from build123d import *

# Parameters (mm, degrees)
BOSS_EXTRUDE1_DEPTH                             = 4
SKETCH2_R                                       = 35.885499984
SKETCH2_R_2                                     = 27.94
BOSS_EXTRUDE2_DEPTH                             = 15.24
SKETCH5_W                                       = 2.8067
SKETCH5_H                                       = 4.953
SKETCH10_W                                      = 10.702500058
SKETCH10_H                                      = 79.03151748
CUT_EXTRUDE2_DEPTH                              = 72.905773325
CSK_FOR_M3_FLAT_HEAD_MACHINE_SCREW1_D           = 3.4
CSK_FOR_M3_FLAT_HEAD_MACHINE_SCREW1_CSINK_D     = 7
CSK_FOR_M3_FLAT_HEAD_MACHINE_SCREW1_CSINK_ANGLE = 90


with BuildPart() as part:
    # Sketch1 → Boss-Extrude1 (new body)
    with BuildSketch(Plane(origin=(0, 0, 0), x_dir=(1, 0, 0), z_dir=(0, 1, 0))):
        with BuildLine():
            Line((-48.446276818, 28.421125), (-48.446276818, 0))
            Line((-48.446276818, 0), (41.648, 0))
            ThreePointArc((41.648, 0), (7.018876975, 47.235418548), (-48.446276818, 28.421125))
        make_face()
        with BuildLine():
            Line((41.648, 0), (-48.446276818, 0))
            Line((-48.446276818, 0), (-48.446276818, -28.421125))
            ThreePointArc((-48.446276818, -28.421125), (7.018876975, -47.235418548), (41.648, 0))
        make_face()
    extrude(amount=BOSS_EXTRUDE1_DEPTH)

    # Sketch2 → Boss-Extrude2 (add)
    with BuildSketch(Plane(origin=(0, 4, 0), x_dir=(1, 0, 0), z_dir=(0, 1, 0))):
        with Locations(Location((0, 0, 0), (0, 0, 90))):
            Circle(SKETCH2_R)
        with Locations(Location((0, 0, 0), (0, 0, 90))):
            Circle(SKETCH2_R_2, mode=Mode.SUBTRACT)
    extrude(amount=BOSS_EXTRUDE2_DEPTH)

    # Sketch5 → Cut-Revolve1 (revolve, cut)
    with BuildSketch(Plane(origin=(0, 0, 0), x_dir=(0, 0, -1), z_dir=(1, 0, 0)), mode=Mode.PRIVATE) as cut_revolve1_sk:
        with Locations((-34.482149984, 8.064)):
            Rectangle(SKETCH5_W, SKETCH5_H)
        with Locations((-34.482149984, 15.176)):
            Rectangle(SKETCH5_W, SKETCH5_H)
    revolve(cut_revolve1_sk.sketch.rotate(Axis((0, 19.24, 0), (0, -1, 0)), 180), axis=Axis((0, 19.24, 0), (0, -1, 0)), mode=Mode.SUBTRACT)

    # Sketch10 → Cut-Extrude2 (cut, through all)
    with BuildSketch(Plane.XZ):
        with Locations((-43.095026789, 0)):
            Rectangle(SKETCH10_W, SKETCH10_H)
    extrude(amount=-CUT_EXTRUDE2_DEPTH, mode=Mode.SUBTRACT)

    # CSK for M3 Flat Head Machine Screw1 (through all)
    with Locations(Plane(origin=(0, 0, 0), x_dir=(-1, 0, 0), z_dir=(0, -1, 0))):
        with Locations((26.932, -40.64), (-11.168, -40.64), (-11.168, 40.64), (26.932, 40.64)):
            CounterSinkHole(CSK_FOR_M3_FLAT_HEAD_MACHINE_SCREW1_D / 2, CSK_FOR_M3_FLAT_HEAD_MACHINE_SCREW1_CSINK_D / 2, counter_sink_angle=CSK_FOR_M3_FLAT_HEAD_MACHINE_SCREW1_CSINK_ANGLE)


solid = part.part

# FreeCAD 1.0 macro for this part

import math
import FreeCAD as App
import Part
import Sketcher
from FreeCAD import Vector
Q = App.Units.Quantity

doc = App.newDocument("Part")
params = doc.addObject("Spreadsheet::Sheet", "Params")
for row, (alias, value) in enumerate([
    ("sketch1_radius", "1.95 in"),
    ("pad1_length", "4 mm"),
    ("sketch2_diameter", "2.2 in"),
    ("pad2_length", "0.6 in"),
    ("sketch3_width", "0.195 in"),
    ("groove_angle", "360 deg"),
    ("hole_diameter", "3.4 mm"),
    ("hole_csink_diameter", "7 mm"),
], start=1):
    params.set(f"A{row}", alias)
    params.set(f"B{row}", "=" + value)
    params.setAlias(f"B{row}", alias)

body = doc.addObject("PartDesign::Body", "Body")

sketch1 = doc.addObject("Sketcher::SketchObject", "Sketch")
body.addObject(sketch1)
sketch1.AttachmentSupport = (doc.XZ_Plane, [""])
sketch1.MapMode = "FlatFace"
sketch1.addGeometry(Part.LineSegment(Vector(-48, -28, 0), Vector(-48, 28, 0)), False)
sketch1.addGeometry(Part.ArcOfCircle(Part.Circle(Vector(-8, 0, 0), Vector(0, 0, 1), 50), math.radians(0), math.radians(145)), False)
sketch1.addGeometry(Part.ArcOfCircle(Part.Circle(Vector(-8, 0, 0), Vector(0, 0, 1), 50), math.radians(-145), math.radians(0)), False)
sketch1.addConstraint(Sketcher.Constraint("Coincident", 0, 2, 1, 2))
sketch1.addConstraint(Sketcher.Constraint("Tangent", 1, 1, 2, 2))
sketch1.addConstraint(Sketcher.Constraint("Coincident", 2, 1, 0, 1))
sketch1.addConstraint(Sketcher.Constraint("Vertical", 0))
sketch1.addConstraint(Sketcher.Constraint("Equal", 1, 2))
sketch1.addConstraint(Sketcher.Constraint("PointOnObject", 1, 3, -1))
sketch1.addConstraint(Sketcher.Constraint("PointOnObject", 1, 1, -1))
sketch1.addConstraint(Sketcher.Constraint("Radius", 1, Q("1.95 in")))
sketch1.addConstraint(Sketcher.Constraint("DistanceY", 0, 1, 0, 2, 56.84225))
sketch1.addConstraint(Sketcher.Constraint("DistanceX", 1, 3, -1, 1, 7.882))
sketch1.setExpression("Constraints[7]", "Params.sketch1_radius")
pad1 = doc.addObject("PartDesign::Pad", "Pad")
body.addObject(pad1)
pad1.Profile = sketch1
pad1.setExpression("Length", "Params.pad1_length")
pad1.Reversed = True

sketch2 = doc.addObject("Sketcher::SketchObject", "Sketch001")
body.addObject(sketch2)
sketch2.AttachmentSupport = (doc.XZ_Plane, [""])
sketch2.MapMode = "FlatFace"
sketch2.AttachmentOffset = App.Placement(Vector(0, 0, -4), App.Rotation())
sketch2.addGeometry(Part.Circle(Vector(0, 0, 0), Vector(0, 0, 1), 36), False)
sketch2.addGeometry(Part.Circle(Vector(0, 0, 0), Vector(0, 0, 1), 28), False)
sketch2.addConstraint(Sketcher.Constraint("Coincident", 0, 3, -1, 1))
sketch2.addConstraint(Sketcher.Constraint("Coincident", 1, 3, -1, 1))
sketch2.addConstraint(Sketcher.Constraint("Diameter", 1, Q("2.2 in")))
sketch2.addConstraint(Sketcher.Constraint("Diameter", 0, 71.771))
sketch2.setExpression("Constraints[2]", "Params.sketch2_diameter")
pad2 = doc.addObject("PartDesign::Pad", "Pad001")
body.addObject(pad2)
pad2.Profile = sketch2
pad2.setExpression("Length", "Params.pad2_length")
pad2.Reversed = True

sketch3 = doc.addObject("Sketcher::SketchObject", "Sketch002")
body.addObject(sketch3)
sketch3.AttachmentSupport = (doc.YZ_Plane, [""])
sketch3.MapMode = "FlatFace"
sketch3.addGeometry(Part.LineSegment(Vector(10.5, 35.9, 0), Vector(5.6, 35.9, 0)), False)
sketch3.addGeometry(Part.LineSegment(Vector(5.6, 35.9, 0), Vector(5.6, 33.1, 0)), False)
sketch3.addGeometry(Part.LineSegment(Vector(5.6, 33.1, 0), Vector(10.5, 33.1, 0)), False)
sketch3.addGeometry(Part.LineSegment(Vector(10.5, 33.1, 0), Vector(10.5, 35.9, 0)), False)
sketch3.addGeometry(Part.LineSegment(Vector(17.7, 35.9, 0), Vector(12.7, 35.9, 0)), False)
sketch3.addGeometry(Part.LineSegment(Vector(12.7, 35.9, 0), Vector(12.7, 33.1, 0)), False)
sketch3.addGeometry(Part.LineSegment(Vector(12.7, 33.1, 0), Vector(17.7, 33.1, 0)), False)
sketch3.addGeometry(Part.LineSegment(Vector(17.7, 33.1, 0), Vector(17.7, 35.9, 0)), False)
sketch3.addConstraint(Sketcher.Constraint("Coincident", 0, 2, 1, 1))
sketch3.addConstraint(Sketcher.Constraint("Coincident", 1, 2, 2, 1))
sketch3.addConstraint(Sketcher.Constraint("Coincident", 2, 2, 3, 1))
sketch3.addConstraint(Sketcher.Constraint("Coincident", 3, 2, 0, 1))
sketch3.addConstraint(Sketcher.Constraint("Coincident", 4, 2, 5, 1))
sketch3.addConstraint(Sketcher.Constraint("Coincident", 5, 2, 6, 1))
sketch3.addConstraint(Sketcher.Constraint("Coincident", 6, 2, 7, 1))
sketch3.addConstraint(Sketcher.Constraint("Coincident", 7, 2, 4, 1))
sketch3.addConstraint(Sketcher.Constraint("Horizontal", 0))
sketch3.addConstraint(Sketcher.Constraint("Vertical", 1))
sketch3.addConstraint(Sketcher.Constraint("Horizontal", 2))
sketch3.addConstraint(Sketcher.Constraint("Vertical", 3))
sketch3.addConstraint(Sketcher.Constraint("Horizontal", 4))
sketch3.addConstraint(Sketcher.Constraint("Vertical", 5))
sketch3.addConstraint(Sketcher.Constraint("Horizontal", 6))
sketch3.addConstraint(Sketcher.Constraint("Vertical", 7))
sketch3.addConstraint(Sketcher.Constraint("Horizontal", 3, 2, 4, 2))
sketch3.addConstraint(Sketcher.Constraint("Horizontal", 2, 2, 5, 2))
sketch3.addConstraint(Sketcher.Constraint("Equal", 2, 4))
sketch3.addConstraint(Sketcher.Constraint("DistanceX", 0, 2, 0, 1, Q("0.195 in")))
sketch3.addConstraint(Sketcher.Constraint("DistanceX", 0, 2, 4, 2, Q("0.28 in")))
sketch3.addConstraint(Sketcher.Constraint("DistanceY", 1, 2, 1, 1, Q("0.1105 in")))
sketch3.addConstraint(Sketcher.Constraint("DistanceX", -1, 1, 0, 2, 5.5875))
sketch3.addConstraint(Sketcher.Constraint("DistanceY", -1, 1, 0, 2, 35.8855))
sketch3.setExpression("Constraints[19]", "Params.sketch3_width")
groove = doc.addObject("PartDesign::Groove", "Groove")
body.addObject(groove)
groove.Profile = sketch3
groove.ReferenceAxis = (sketch3, ["H_Axis"])
groove.setExpression("Angle", "Params.groove_angle")

sketch4 = doc.addObject("Sketcher::SketchObject", "Sketch003")
body.addObject(sketch4)
sketch4.AttachmentSupport = (doc.XZ_Plane, [""])
sketch4.MapMode = "FlatFace"
sketch4.addGeometry(Part.LineSegment(Vector(-48, 40, 0), Vector(-48, -40, 0)), False)
sketch4.addGeometry(Part.LineSegment(Vector(-48, -40, 0), Vector(-38, -40, 0)), False)
sketch4.addGeometry(Part.LineSegment(Vector(-38, -40, 0), Vector(-38, 40, 0)), False)
sketch4.addGeometry(Part.LineSegment(Vector(-38, 40, 0), Vector(-48, 40, 0)), False)
sketch4.addConstraint(Sketcher.Constraint("Coincident", 0, 2, 1, 1))
sketch4.addConstraint(Sketcher.Constraint("Coincident", 1, 2, 2, 1))
sketch4.addConstraint(Sketcher.Constraint("Coincident", 2, 2, 3, 1))
sketch4.addConstraint(Sketcher.Constraint("Coincident", 3, 2, 0, 1))
sketch4.addConstraint(Sketcher.Constraint("Vertical", 0))
sketch4.addConstraint(Sketcher.Constraint("Horizontal", 1))
sketch4.addConstraint(Sketcher.Constraint("Vertical", 2))
sketch4.addConstraint(Sketcher.Constraint("Horizontal", 3))
sketch4.addConstraint(Sketcher.Constraint("DistanceX", 1, 1, 1, 2, 10.7025))
sketch4.addConstraint(Sketcher.Constraint("DistanceY", 0, 2, 0, 1, 79.031517))
sketch4.addConstraint(Sketcher.Constraint("DistanceY", 0, 2, -1, 1, 39.515759))
sketch4.addConstraint(Sketcher.Constraint("DistanceX", 0, 2, -1, 1, 48.446277))
pocket1 = doc.addObject("PartDesign::Pocket", "Pocket")
body.addObject(pocket1)
pocket1.Profile = sketch4
pocket1.Type = "ThroughAll"

sketch5 = doc.addObject("Sketcher::SketchObject", "Sketch004")
body.addObject(sketch5)
sketch5.AttachmentSupport = (doc.XZ_Plane, [""])
sketch5.MapMode = "FlatFace"
sketch5.addGeometry(Part.Circle(Vector(-26.9, 40.6, 0), Vector(0, 0, 1), 1.7), False)
sketch5.addGeometry(Part.Circle(Vector(11.2, 40.6, 0), Vector(0, 0, 1), 1.7), False)
sketch5.addGeometry(Part.Circle(Vector(11.2, -40.6, 0), Vector(0, 0, 1), 1.7), False)
sketch5.addGeometry(Part.Circle(Vector(-26.9, -40.6, 0), Vector(0, 0, 1), 1.7), False)
sketch5.addConstraint(Sketcher.Constraint("Equal", 0, 1))
sketch5.addConstraint(Sketcher.Constraint("Equal", 1, 2))
sketch5.addConstraint(Sketcher.Constraint("Equal", 2, 3))
sketch5.addConstraint(Sketcher.Constraint("Symmetric", 1, 3, 2, 3, -1))
sketch5.addConstraint(Sketcher.Constraint("Symmetric", 0, 3, 3, 3, -1))
sketch5.addConstraint(Sketcher.Constraint("Horizontal", 0, 3, 1, 3))
sketch5.addConstraint(Sketcher.Constraint("DistanceY", -1, 1, 0, 3, Q("1.6 in")))
sketch5.addConstraint(Sketcher.Constraint("DistanceX", 0, 3, 1, 3, Q("1.5 in")))
sketch5.addConstraint(Sketcher.Constraint("Diameter", 0, 3.4))
sketch5.addConstraint(Sketcher.Constraint("DistanceX", 0, 3, -1, 1, 26.932))
doc.recompute()
hole = doc.addObject("PartDesign::Hole", "Hole")
body.addObject(hole)
hole.Profile = sketch5
hole.ThreadType = "None"
hole.setExpression("Diameter", "Params.hole_diameter")
hole.DepthType = "ThroughAll"
hole.HoleCutType = "Countersink"
hole.setExpression("HoleCutDiameter", "Params.hole_csink_diameter")
hole.HoleCutCountersinkAngle = 90

doc.recompute()
